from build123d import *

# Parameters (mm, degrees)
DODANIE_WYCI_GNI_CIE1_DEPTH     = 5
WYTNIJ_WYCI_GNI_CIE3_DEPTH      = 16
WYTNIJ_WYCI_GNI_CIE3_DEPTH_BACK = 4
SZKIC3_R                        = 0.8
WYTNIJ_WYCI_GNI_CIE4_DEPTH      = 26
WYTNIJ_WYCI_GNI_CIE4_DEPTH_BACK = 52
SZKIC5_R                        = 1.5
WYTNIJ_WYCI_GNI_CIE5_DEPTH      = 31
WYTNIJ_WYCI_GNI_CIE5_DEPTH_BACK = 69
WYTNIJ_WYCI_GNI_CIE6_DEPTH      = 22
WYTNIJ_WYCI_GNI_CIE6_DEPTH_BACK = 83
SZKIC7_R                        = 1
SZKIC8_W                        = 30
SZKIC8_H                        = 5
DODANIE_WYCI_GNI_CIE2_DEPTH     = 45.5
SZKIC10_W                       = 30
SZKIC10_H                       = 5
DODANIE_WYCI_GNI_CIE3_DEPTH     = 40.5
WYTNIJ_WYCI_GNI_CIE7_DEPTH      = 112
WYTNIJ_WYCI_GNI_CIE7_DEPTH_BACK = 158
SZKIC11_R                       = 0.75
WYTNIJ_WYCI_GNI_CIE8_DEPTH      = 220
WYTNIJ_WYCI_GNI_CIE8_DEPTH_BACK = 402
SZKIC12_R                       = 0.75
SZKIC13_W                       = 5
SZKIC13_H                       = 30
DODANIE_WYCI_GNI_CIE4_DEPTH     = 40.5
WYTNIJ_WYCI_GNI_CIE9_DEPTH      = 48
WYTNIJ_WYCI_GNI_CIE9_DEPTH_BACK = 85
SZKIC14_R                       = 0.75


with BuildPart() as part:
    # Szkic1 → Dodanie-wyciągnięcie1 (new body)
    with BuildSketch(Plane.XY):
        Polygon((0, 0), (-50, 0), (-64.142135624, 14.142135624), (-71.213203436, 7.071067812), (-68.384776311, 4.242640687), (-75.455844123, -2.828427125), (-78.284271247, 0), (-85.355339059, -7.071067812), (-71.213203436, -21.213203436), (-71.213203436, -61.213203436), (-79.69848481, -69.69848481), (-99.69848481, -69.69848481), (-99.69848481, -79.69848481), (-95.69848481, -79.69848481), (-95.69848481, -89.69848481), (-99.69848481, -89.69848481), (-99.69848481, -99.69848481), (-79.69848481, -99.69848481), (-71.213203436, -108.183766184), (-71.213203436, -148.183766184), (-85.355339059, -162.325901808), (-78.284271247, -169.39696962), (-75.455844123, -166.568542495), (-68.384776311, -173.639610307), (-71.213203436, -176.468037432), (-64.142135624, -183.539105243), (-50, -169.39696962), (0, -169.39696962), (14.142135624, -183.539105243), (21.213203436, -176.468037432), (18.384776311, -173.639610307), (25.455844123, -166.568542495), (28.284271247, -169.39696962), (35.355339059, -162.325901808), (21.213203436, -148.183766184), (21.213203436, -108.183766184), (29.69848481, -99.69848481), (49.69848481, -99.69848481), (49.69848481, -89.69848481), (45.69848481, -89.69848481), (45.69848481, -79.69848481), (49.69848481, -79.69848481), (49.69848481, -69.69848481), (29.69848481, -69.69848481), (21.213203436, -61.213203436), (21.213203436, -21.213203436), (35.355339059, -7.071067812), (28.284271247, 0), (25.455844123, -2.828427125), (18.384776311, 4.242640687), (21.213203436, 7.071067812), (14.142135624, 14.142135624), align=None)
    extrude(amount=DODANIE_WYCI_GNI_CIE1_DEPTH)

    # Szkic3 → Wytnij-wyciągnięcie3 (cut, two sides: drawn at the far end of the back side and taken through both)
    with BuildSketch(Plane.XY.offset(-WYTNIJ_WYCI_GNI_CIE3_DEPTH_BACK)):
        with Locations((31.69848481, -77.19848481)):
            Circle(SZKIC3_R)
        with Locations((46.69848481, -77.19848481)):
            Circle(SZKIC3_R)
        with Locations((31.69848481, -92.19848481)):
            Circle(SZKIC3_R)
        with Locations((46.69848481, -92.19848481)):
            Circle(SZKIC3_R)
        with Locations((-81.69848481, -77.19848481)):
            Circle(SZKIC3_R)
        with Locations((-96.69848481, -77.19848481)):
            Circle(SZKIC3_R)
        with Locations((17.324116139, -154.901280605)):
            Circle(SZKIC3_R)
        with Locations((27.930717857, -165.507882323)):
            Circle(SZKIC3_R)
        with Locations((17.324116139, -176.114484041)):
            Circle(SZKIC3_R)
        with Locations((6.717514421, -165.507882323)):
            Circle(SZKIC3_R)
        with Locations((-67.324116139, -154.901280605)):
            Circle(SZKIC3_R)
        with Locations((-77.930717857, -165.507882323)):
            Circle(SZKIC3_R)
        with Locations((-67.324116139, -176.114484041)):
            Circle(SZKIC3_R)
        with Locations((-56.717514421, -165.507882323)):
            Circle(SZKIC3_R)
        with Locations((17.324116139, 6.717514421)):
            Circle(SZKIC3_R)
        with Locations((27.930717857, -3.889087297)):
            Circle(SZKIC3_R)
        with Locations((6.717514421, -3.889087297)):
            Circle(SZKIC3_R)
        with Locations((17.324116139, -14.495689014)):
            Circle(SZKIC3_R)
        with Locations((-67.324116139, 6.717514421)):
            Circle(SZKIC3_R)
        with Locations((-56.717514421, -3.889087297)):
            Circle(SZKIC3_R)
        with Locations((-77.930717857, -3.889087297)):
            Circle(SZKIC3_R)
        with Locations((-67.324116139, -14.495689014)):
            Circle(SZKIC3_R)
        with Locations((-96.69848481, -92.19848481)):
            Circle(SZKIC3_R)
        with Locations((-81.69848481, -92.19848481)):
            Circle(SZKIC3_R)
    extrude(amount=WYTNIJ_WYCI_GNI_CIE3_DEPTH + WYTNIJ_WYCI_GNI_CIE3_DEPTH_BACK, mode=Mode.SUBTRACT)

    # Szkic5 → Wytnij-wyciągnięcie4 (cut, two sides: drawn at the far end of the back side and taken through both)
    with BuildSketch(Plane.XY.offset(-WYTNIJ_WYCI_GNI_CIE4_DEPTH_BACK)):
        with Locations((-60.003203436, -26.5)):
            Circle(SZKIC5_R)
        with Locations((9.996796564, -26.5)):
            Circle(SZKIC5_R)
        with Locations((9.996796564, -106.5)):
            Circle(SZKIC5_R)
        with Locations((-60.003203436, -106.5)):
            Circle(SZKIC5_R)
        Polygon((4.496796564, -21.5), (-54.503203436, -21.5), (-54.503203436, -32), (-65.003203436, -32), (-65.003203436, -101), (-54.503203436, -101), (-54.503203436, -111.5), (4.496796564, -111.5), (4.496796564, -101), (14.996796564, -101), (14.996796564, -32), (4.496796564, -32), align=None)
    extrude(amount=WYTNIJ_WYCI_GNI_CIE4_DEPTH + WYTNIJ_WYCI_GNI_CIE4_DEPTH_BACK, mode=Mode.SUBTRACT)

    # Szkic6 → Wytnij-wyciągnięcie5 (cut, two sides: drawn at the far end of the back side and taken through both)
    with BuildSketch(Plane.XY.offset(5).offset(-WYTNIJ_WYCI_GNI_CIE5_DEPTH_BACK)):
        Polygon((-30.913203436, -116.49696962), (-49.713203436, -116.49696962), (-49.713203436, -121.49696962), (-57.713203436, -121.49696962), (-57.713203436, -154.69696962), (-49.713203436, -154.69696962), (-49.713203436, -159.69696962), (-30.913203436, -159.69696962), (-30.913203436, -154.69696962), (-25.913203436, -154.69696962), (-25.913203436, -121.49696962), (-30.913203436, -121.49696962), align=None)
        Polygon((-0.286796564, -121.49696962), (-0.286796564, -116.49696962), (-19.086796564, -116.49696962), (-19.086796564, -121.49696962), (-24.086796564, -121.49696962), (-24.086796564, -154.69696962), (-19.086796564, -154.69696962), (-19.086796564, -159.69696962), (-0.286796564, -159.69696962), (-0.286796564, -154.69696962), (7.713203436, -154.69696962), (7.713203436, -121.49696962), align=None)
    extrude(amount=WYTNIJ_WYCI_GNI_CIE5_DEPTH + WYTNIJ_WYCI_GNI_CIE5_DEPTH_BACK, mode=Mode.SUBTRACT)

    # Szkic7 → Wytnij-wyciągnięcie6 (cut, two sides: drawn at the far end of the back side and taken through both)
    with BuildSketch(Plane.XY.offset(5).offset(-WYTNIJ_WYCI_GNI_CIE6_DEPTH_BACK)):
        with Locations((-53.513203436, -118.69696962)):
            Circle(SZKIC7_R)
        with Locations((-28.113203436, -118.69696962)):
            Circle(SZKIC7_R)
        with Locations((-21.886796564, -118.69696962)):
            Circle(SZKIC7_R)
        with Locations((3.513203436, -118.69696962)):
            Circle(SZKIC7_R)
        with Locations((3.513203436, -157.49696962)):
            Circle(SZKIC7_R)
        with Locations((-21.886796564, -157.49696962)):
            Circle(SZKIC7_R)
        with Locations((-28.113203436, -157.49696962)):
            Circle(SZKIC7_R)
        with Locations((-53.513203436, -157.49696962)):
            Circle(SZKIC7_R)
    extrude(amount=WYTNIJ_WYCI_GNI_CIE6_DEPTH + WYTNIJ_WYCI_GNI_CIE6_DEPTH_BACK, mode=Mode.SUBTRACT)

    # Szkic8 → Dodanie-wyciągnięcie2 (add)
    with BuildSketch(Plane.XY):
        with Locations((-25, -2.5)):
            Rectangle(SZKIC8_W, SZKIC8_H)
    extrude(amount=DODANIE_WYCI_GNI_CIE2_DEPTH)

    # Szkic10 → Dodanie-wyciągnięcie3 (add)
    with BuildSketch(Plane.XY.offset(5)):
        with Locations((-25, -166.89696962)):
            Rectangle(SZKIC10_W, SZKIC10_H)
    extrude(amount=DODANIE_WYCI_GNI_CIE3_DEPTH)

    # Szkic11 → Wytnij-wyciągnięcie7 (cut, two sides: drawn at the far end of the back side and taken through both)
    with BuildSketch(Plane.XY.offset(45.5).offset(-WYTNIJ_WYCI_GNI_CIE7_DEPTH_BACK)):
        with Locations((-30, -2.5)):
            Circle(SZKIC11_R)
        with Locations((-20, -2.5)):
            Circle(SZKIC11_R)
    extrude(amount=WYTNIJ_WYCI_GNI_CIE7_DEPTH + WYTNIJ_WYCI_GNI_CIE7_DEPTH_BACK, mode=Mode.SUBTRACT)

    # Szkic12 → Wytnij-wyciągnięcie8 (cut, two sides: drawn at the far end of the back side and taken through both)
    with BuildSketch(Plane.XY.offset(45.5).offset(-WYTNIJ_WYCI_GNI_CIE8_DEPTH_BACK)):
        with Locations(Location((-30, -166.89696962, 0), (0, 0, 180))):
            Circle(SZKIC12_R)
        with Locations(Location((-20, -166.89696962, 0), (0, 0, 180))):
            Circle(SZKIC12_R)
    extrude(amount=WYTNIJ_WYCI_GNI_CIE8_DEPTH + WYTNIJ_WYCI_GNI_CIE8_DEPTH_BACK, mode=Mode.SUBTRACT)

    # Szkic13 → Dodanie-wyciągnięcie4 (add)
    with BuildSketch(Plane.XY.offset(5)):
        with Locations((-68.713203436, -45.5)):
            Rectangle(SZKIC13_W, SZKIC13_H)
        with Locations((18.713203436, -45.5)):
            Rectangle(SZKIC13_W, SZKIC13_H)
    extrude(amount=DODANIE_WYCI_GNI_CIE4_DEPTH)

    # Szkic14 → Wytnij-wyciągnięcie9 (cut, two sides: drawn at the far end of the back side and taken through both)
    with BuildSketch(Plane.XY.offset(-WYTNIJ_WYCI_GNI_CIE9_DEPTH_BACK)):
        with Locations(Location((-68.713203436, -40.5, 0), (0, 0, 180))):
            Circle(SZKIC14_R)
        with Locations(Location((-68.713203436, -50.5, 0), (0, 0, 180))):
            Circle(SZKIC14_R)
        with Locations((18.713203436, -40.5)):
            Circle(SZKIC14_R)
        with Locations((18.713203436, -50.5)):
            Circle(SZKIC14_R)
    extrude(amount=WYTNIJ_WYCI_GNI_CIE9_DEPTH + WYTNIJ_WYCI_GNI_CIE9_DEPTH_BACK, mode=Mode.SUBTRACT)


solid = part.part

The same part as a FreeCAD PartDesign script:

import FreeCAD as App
import Part
import Sketcher

V = App.Vector

doc = App.newDocument("Part")
body = doc.addObject("PartDesign::Body", "Body")

sketch1 = body.newObject("Sketcher::SketchObject", "Sketch")
sketch1.AttachmentSupport = (doc.getObject("XY_Plane"), [""])
sketch1.MapMode = "FlatFace"
sketch1.addGeometry([
    Part.LineSegment(V(0, 0, 0), V(-50, 0, 0)),
    Part.LineSegment(V(-50, 0, 0), V(-64.1, 14.1, 0)),
    Part.LineSegment(V(-64.1, 14.1, 0), V(-71.2, 7.1, 0)),
    Part.LineSegment(V(-71.2, 7.1, 0), V(-68.4, 4.2, 0)),
    Part.LineSegment(V(-68.4, 4.2, 0), V(-75.5, -2.8, 0)),
    Part.LineSegment(V(-75.5, -2.8, 0), V(-78.3, 0, 0)),
    Part.LineSegment(V(-78.3, 0, 0), V(-85.4, -7.1, 0)),
    Part.LineSegment(V(-85.4, -7.1, 0), V(-71.2, -21.2, 0)),
    Part.LineSegment(V(-71.2, -21.2, 0), V(-71.2, -61.2, 0)),
    Part.LineSegment(V(-71.2, -61.2, 0), V(-79.7, -69.7, 0)),
    Part.LineSegment(V(-79.7, -69.7, 0), V(-99.7, -69.7, 0)),
    Part.LineSegment(V(-99.7, -69.7, 0), V(-99.7, -79.7, 0)),
    Part.LineSegment(V(-99.7, -79.7, 0), V(-95.7, -79.7, 0)),
    Part.LineSegment(V(-95.7, -79.7, 0), V(-95.7, -89.7, 0)),
    Part.LineSegment(V(-95.7, -89.7, 0), V(-99.7, -89.7, 0)),
    Part.LineSegment(V(-99.7, -89.7, 0), V(-99.7, -99.7, 0)),
    Part.LineSegment(V(-99.7, -99.7, 0), V(-79.7, -99.7, 0)),
    Part.LineSegment(V(-79.7, -99.7, 0), V(-71.2, -108.2, 0)),
    Part.LineSegment(V(-71.2, -108.2, 0), V(-71.2, -148.2, 0)),
    Part.LineSegment(V(-71.2, -148.2, 0), V(-85.4, -162.3, 0)),
    Part.LineSegment(V(-85.4, -162.3, 0), V(-78.3, -169.4, 0)),
    Part.LineSegment(V(-78.3, -169.4, 0), V(-75.5, -166.6, 0)),
    Part.LineSegment(V(-75.5, -166.6, 0), V(-68.4, -173.6, 0)),
    Part.LineSegment(V(-68.4, -173.6, 0), V(-71.2, -176.5, 0)),
    Part.LineSegment(V(-71.2, -176.5, 0), V(-64.1, -183.5, 0)),
    Part.LineSegment(V(-64.1, -183.5, 0), V(-50, -169.4, 0)),
    Part.LineSegment(V(-50, -169.4, 0), V(0, -169.4, 0)),
    Part.LineSegment(V(0, -169.4, 0), V(14.1, -183.5, 0)),
    Part.LineSegment(V(14.1, -183.5, 0), V(21.2, -176.5, 0)),
    Part.LineSegment(V(21.2, -176.5, 0), V(18.4, -173.6, 0)),
    Part.LineSegment(V(18.4, -173.6, 0), V(25.5, -166.6, 0)),
    Part.LineSegment(V(25.5, -166.6, 0), V(28.3, -169.4, 0)),
    Part.LineSegment(V(28.3, -169.4, 0), V(35.4, -162.3, 0)),
    Part.LineSegment(V(35.4, -162.3, 0), V(21.2, -148.2, 0)),
    Part.LineSegment(V(21.2, -148.2, 0), V(21.2, -108.2, 0)),
    Part.LineSegment(V(21.2, -108.2, 0), V(29.7, -99.7, 0)),
    Part.LineSegment(V(29.7, -99.7, 0), V(49.7, -99.7, 0)),
    Part.LineSegment(V(49.7, -99.7, 0), V(49.7, -89.7, 0)),
    Part.LineSegment(V(49.7, -89.7, 0), V(45.7, -89.7, 0)),
    Part.LineSegment(V(45.7, -89.7, 0), V(45.7, -79.7, 0)),
    Part.LineSegment(V(45.7, -79.7, 0), V(49.7, -79.7, 0)),
    Part.LineSegment(V(49.7, -79.7, 0), V(49.7, -69.7, 0)),
    Part.LineSegment(V(49.7, -69.7, 0), V(29.7, -69.7, 0)),
    Part.LineSegment(V(29.7, -69.7, 0), V(21.2, -61.2, 0)),
    Part.LineSegment(V(21.2, -61.2, 0), V(21.2, -21.2, 0)),
    Part.LineSegment(V(21.2, -21.2, 0), V(35.4, -7.1, 0)),
    Part.LineSegment(V(35.4, -7.1, 0), V(28.3, 0, 0)),
    Part.LineSegment(V(28.3, 0, 0), V(25.5, -2.8, 0)),
    Part.LineSegment(V(25.5, -2.8, 0), V(18.4, 4.2, 0)),
    Part.LineSegment(V(18.4, 4.2, 0), V(21.2, 7.1, 0)),
    Part.LineSegment(V(21.2, 7.1, 0), V(14.1, 14.1, 0)),
    Part.LineSegment(V(14.1, 14.1, 0), V(0, 0, 0)),
], False)
sketch1.addConstraint([
    Sketcher.Constraint("Coincident", 0, 2, 1, 1),
    Sketcher.Constraint("Coincident", 1, 2, 2, 1),
    Sketcher.Constraint("Coincident", 2, 2, 3, 1),
    Sketcher.Constraint("Coincident", 3, 2, 4, 1),
    Sketcher.Constraint("Coincident", 4, 2, 5, 1),
    Sketcher.Constraint("Coincident", 5, 2, 6, 1),
    Sketcher.Constraint("Coincident", 6, 2, 7, 1),
    Sketcher.Constraint("Coincident", 7, 2, 8, 1),
    Sketcher.Constraint("Coincident", 8, 2, 9, 1),
    Sketcher.Constraint("Coincident", 9, 2, 10, 1),
    Sketcher.Constraint("Coincident", 10, 2, 11, 1),
    Sketcher.Constraint("Coincident", 11, 2, 12, 1),
    Sketcher.Constraint("Coincident", 12, 2, 13, 1),
    Sketcher.Constraint("Coincident", 13, 2, 14, 1),
    Sketcher.Constraint("Coincident", 14, 2, 15, 1),
    Sketcher.Constraint("Coincident", 15, 2, 16, 1),
    Sketcher.Constraint("Coincident", 16, 2, 17, 1),
    Sketcher.Constraint("Coincident", 17, 2, 18, 1),
    Sketcher.Constraint("Coincident", 18, 2, 19, 1),
    Sketcher.Constraint("Coincident", 19, 2, 20, 1),
    Sketcher.Constraint("Coincident", 20, 2, 21, 1),
    Sketcher.Constraint("Coincident", 21, 2, 22, 1),
    Sketcher.Constraint("Coincident", 22, 2, 23, 1),
    Sketcher.Constraint("Coincident", 23, 2, 24, 1),
    Sketcher.Constraint("Coincident", 24, 2, 25, 1),
    Sketcher.Constraint("Coincident", 25, 2, 26, 1),
    Sketcher.Constraint("Coincident", 26, 2, 27, 1),
    Sketcher.Constraint("Coincident", 27, 2, 28, 1),
    Sketcher.Constraint("Coincident", 28, 2, 29, 1),
    Sketcher.Constraint("Coincident", 29, 2, 30, 1),
    Sketcher.Constraint("Coincident", 30, 2, 31, 1),
    Sketcher.Constraint("Coincident", 31, 2, 32, 1),
    Sketcher.Constraint("Coincident", 32, 2, 33, 1),
    Sketcher.Constraint("Coincident", 33, 2, 34, 1),
    Sketcher.Constraint("Coincident", 34, 2, 35, 1),
    Sketcher.Constraint("Coincident", 35, 2, 36, 1),
    Sketcher.Constraint("Coincident", 36, 2, 37, 1),
    Sketcher.Constraint("Coincident", 37, 2, 38, 1),
    Sketcher.Constraint("Coincident", 38, 2, 39, 1),
    Sketcher.Constraint("Coincident", 39, 2, 40, 1),
    Sketcher.Constraint("Coincident", 40, 2, 41, 1),
    Sketcher.Constraint("Coincident", 41, 2, 42, 1),
    Sketcher.Constraint("Coincident", 42, 2, 43, 1),
    Sketcher.Constraint("Coincident", 43, 2, 44, 1),
    Sketcher.Constraint("Coincident", 44, 2, 45, 1),
    Sketcher.Constraint("Coincident", 45, 2, 46, 1),
    Sketcher.Constraint("Coincident", 46, 2, 47, 1),
    Sketcher.Constraint("Coincident", 47, 2, 48, 1),
    Sketcher.Constraint("Coincident", 48, 2, 49, 1),
    Sketcher.Constraint("Coincident", 49, 2, 50, 1),
    Sketcher.Constraint("Coincident", 50, 2, 51, 1),
    Sketcher.Constraint("Coincident", 51, 2, 0, 1),
    Sketcher.Constraint("Horizontal", 0),
    Sketcher.Constraint("Vertical", 8),
    Sketcher.Constraint("Horizontal", 10),
    Sketcher.Constraint("Vertical", 11),
    Sketcher.Constraint("Horizontal", 12),
    Sketcher.Constraint("Vertical", 13),
    Sketcher.Constraint("Horizontal", 14),
    Sketcher.Constraint("Vertical", 15),
    Sketcher.Constraint("Horizontal", 16),
    Sketcher.Constraint("Vertical", 18),
    Sketcher.Constraint("Horizontal", 26),
    Sketcher.Constraint("Vertical", 34),
    Sketcher.Constraint("Horizontal", 36),
    Sketcher.Constraint("Vertical", 37),
    Sketcher.Constraint("Horizontal", 38),
    Sketcher.Constraint("Vertical", 39),
    Sketcher.Constraint("Horizontal", 40),
    Sketcher.Constraint("Vertical", 41),
    Sketcher.Constraint("Horizontal", 42),
    Sketcher.Constraint("Vertical", 44),
    Sketcher.Constraint("Coincident", 51, 2, -1, 1),
    Sketcher.Constraint("PointOnObject", 5, 2, -1),
    Sketcher.Constraint("PointOnObject", 26, 2, -2),
    Sketcher.Constraint("PointOnObject", 46, 2, -1),
    Sketcher.Constraint("Perpendicular", 1, 2),
    Sketcher.Constraint("Perpendicular", 2, 3),
    Sketcher.Constraint("Perpendicular", 3, 4),
    Sketcher.Constraint("Perpendicular", 4, 5),
    Sketcher.Constraint("Perpendicular", 5, 6),
    Sketcher.Constraint("Perpendicular", 6, 7),
    Sketcher.Constraint("Perpendicular", 7, 9),
    Sketcher.Constraint("Perpendicular", 9, 17),
    Sketcher.Constraint("Perpendicular", 17, 19),
    Sketcher.Constraint("Perpendicular", 19, 20),
    Sketcher.Constraint("Perpendicular", 20, 21),
    Sketcher.Constraint("Perpendicular", 21, 22),
    Sketcher.Constraint("Perpendicular", 22, 23),
    Sketcher.Constraint("Perpendicular", 23, 24),
    Sketcher.Constraint("Perpendicular", 24, 25),
    Sketcher.Constraint("Perpendicular", 25, 27),
    Sketcher.Constraint("Perpendicular", 27, 28),
    Sketcher.Constraint("Perpendicular", 28, 29),
    Sketcher.Constraint("Perpendicular", 29, 30),
    Sketcher.Constraint("Perpendicular", 30, 31),
    Sketcher.Constraint("Perpendicular", 31, 32),
    Sketcher.Constraint("Perpendicular", 32, 33),
    Sketcher.Constraint("Perpendicular", 33, 35),
    Sketcher.Constraint("Perpendicular", 35, 43),
    Sketcher.Constraint("Perpendicular", 43, 45),
    Sketcher.Constraint("Perpendicular", 45, 46),
    Sketcher.Constraint("Perpendicular", 46, 47),
    Sketcher.Constraint("Perpendicular", 47, 48),
    Sketcher.Constraint("Perpendicular", 48, 49),
    Sketcher.Constraint("Perpendicular", 49, 50),
    Sketcher.Constraint("Perpendicular", 50, 51),
    Sketcher.Constraint("Horizontal", 20, 2, 25, 2),
    Sketcher.Constraint("Horizontal", 24, 2, 27, 2),
    Sketcher.Constraint("Horizontal", 23, 2, 28, 2),
    Sketcher.Constraint("Horizontal", 22, 2, 29, 2),
    Sketcher.Constraint("Horizontal", 21, 2, 30, 2),
    Sketcher.Constraint("Horizontal", 26, 2, 31, 2),
    Sketcher.Constraint("Horizontal", 19, 2, 32, 2),
    Sketcher.Constraint("Horizontal", 18, 2, 33, 2),
    Sketcher.Constraint("Horizontal", 17, 2, 34, 2),
    Sketcher.Constraint("Horizontal", 16, 2, 35, 2),
    Sketcher.Constraint("Horizontal", 14, 2, 37, 2),
    Sketcher.Constraint("Horizontal", 12, 2, 39, 2),
    Sketcher.Constraint("Horizontal", 10, 2, 41, 2),
    Sketcher.Constraint("Horizontal", 8, 2, 43, 2),
    Sketcher.Constraint("Horizontal", 7, 2, 44, 2),
    Sketcher.Constraint("Horizontal", 6, 2, 45, 2),
    Sketcher.Constraint("Horizontal", 4, 2, 47, 2),
    Sketcher.Constraint("Horizontal", 3, 2, 48, 2),
    Sketcher.Constraint("Horizontal", 2, 2, 49, 2),
    Sketcher.Constraint("Horizontal", 1, 2, 50, 2),
    Sketcher.Constraint("Vertical", 2, 2, 7, 2),
    Sketcher.Constraint("Vertical", 11, 2, 14, 2),
    Sketcher.Constraint("Vertical", 9, 2, 16, 2),
    Sketcher.Constraint("Vertical", 8, 2, 17, 2),
    Sketcher.Constraint("Vertical", 6, 2, 19, 2),
    Sketcher.Constraint("Vertical", 5, 2, 20, 2),
    Sketcher.Constraint("Vertical", 4, 2, 21, 2),
    Sketcher.Constraint("Vertical", 3, 2, 22, 2),
    Sketcher.Constraint("Vertical", 18, 2, 23, 2),
    Sketcher.Constraint("Vertical", 1, 2, 24, 2),
    Sketcher.Constraint("Vertical", 0, 2, 25, 2),
    Sketcher.Constraint("Vertical", 37, 2, 40, 2),
    Sketcher.Constraint("Equal", 16, 36),
    Sketcher.Constraint("Equal", 14, 38),
    Sketcher.Constraint("Equal", 11, 13),
    Sketcher.Constraint("Equal", 13, 15),
    Sketcher.Constraint("Equal", 8, 18),
    Sketcher.Constraint("Equal", 2, 4),
    Sketcher.Constraint("Equal", 3, 5),
    Sketcher.Constraint("Equal", 4, 6),
    Sketcher.Constraint("DistanceX", 0, 2, 0, 1, 50.0),
    Sketcher.Constraint("DistanceX", 10, 2, 10, 1, 20.0),
    Sketcher.Constraint("DistanceX", 12, 1, 12, 2, 4.0),
    Sketcher.Constraint("DistanceY", 8, 2, 8, 1, 40.0),
    Sketcher.Constraint("DistanceY", 11, 2, 11, 1, 10.0),
    Sketcher.Constraint("Distance", 1, 20.0),
    Sketcher.Constraint("Distance", 3, 4.0),
    Sketcher.Constraint("Distance", 9, 12.0),
])
pad1 = body.newObject("PartDesign::Pad", "Pad")
pad1.Profile = sketch1
pad1.Length = 5

sketch2 = body.newObject("Sketcher::SketchObject", "Sketch001")
sketch2.AttachmentSupport = (doc.getObject("XY_Plane"), [""])
sketch2.MapMode = "FlatFace"
sketch2.addGeometry([
    Part.Circle(V(31.7, -77.2, 0), V(0, 0, 1), 0.8),
    Part.Circle(V(46.7, -77.2, 0), V(0, 0, 1), 0.8),
    Part.Circle(V(31.7, -92.2, 0), V(0, 0, 1), 0.8),
    Part.Circle(V(46.7, -92.2, 0), V(0, 0, 1), 0.8),
    Part.Circle(V(-81.7, -77.2, 0), V(0, 0, 1), 0.8),
    Part.Circle(V(-96.7, -77.2, 0), V(0, 0, 1), 0.8),
    Part.Circle(V(17.3, -154.9, 0), V(0, 0, 1), 0.8),
    Part.Circle(V(27.9, -165.5, 0), V(0, 0, 1), 0.8),
    Part.Circle(V(17.3, -176.1, 0), V(0, 0, 1), 0.8),
    Part.Circle(V(6.7, -165.5, 0), V(0, 0, 1), 0.8),
    Part.Circle(V(-67.3, -154.9, 0), V(0, 0, 1), 0.8),
    Part.Circle(V(-77.9, -165.5, 0), V(0, 0, 1), 0.8),
    Part.Circle(V(-67.3, -176.1, 0), V(0, 0, 1), 0.8),
    Part.Circle(V(-56.7, -165.5, 0), V(0, 0, 1), 0.8),
    Part.Circle(V(17.3, 6.7, 0), V(0, 0, 1), 0.8),
    Part.Circle(V(27.9, -3.9, 0), V(0, 0, 1), 0.8),
    Part.Circle(V(6.7, -3.9, 0), V(0, 0, 1), 0.8),
    Part.Circle(V(17.3, -14.5, 0), V(0, 0, 1), 0.8),
    Part.Circle(V(-67.3, 6.7, 0), V(0, 0, 1), 0.8),
    Part.Circle(V(-56.7, -3.9, 0), V(0, 0, 1), 0.8),
    Part.Circle(V(-77.9, -3.9, 0), V(0, 0, 1), 0.8),
    Part.Circle(V(-67.3, -14.5, 0), V(0, 0, 1), 0.8),
    Part.Circle(V(-96.7, -92.2, 0), V(0, 0, 1), 0.8),
    Part.Circle(V(-81.7, -92.2, 0), V(0, 0, 1), 0.8),
], False)
sketch2.addConstraint([
    Sketcher.Constraint("Equal", 0, 1),
    Sketcher.Constraint("Equal", 1, 2),
    Sketcher.Constraint("Equal", 2, 3),
    Sketcher.Constraint("Equal", 3, 4),
    Sketcher.Constraint("Equal", 4, 5),
    Sketcher.Constraint("Equal", 5, 6),
    Sketcher.Constraint("Equal", 6, 7),
    Sketcher.Constraint("Equal", 7, 8),
    Sketcher.Constraint("Equal", 8, 9),
    Sketcher.Constraint("Equal", 9, 10),
    Sketcher.Constraint("Equal", 10, 11),
    Sketcher.Constraint("Equal", 11, 12),
    Sketcher.Constraint("Equal", 12, 13),
    Sketcher.Constraint("Equal", 13, 14),
    Sketcher.Constraint("Equal", 14, 15),
    Sketcher.Constraint("Equal", 15, 16),
    Sketcher.Constraint("Equal", 16, 17),
    Sketcher.Constraint("Equal", 17, 18),
    Sketcher.Constraint("Equal", 18, 19),
    Sketcher.Constraint("Equal", 19, 20),
    Sketcher.Constraint("Equal", 20, 21),
    Sketcher.Constraint("Equal", 21, 22),
    Sketcher.Constraint("Equal", 22, 23),
    Sketcher.Constraint("Horizontal", 0, 3, 1, 3),
    Sketcher.Constraint("Horizontal", 2, 3, 3, 3),
    Sketcher.Constraint("Horizontal", 1, 3, 4, 3),
    Sketcher.Constraint("Horizontal", 4, 3, 5, 3),
    Sketcher.Constraint("Horizontal", 7, 3, 9, 3),
    Sketcher.Constraint("Horizontal", 6, 3, 10, 3),
    Sketcher.Constraint("Horizontal", 9, 3, 11, 3),
    Sketcher.Constraint("Horizontal", 8, 3, 12, 3),
    Sketcher.Constraint("Horizontal", 11, 3, 13, 3),
    Sketcher.Constraint("Horizontal", 15, 3, 16, 3),
    Sketcher.Constraint("Horizontal", 14, 3, 18, 3),
    Sketcher.Constraint("Horizontal", 16, 3, 19, 3),
    Sketcher.Constraint("Horizontal", 19, 3, 20, 3),
    Sketcher.Constraint("Horizontal", 17, 3, 21, 3),
    Sketcher.Constraint("Horizontal", 3, 3, 22, 3),
    Sketcher.Constraint("Horizontal", 22, 3, 23, 3),
    Sketcher.Constraint("Vertical", 0, 3, 2, 3),
    Sketcher.Constraint("Vertical", 1, 3, 3, 3),
    Sketcher.Constraint("Vertical", 6, 3, 8, 3),
    Sketcher.Constraint("Vertical", 10, 3, 12, 3),
    Sketcher.Constraint("Vertical", 8, 3, 14, 3),
    Sketcher.Constraint("Vertical", 7, 3, 15, 3),
    Sketcher.Constraint("Vertical", 9, 3, 16, 3),
    Sketcher.Constraint("Vertical", 14, 3, 17, 3),
    Sketcher.Constraint("Vertical", 12, 3, 18, 3),
    Sketcher.Constraint("Vertical", 13, 3, 19, 3),
    Sketcher.Constraint("Vertical", 11, 3, 20, 3),
    Sketcher.Constraint("Vertical", 18, 3, 21, 3),
    Sketcher.Constraint("Vertical", 5, 3, 22, 3),
    Sketcher.Constraint("Vertical", 4, 3, 23, 3),
    Sketcher.Constraint("Diameter", 0, 1.6),
    Sketcher.Constraint("DistanceX", 0, 3, 1, 3, 15.0),
    Sketcher.Constraint("DistanceY", 2, 3, 0, 3, 15.0),
    Sketcher.Constraint("DistanceX", 5, 3, 4, 3, 15.0),
    Sketcher.Constraint("DistanceY", 8, 3, 2, 3, 83.915999),
    Sketcher.Constraint("DistanceY", 0, 3, 14, 3, 83.915999),
    Sketcher.Constraint("DistanceX", 4, 3, 6, 3, 99.022601),
    Sketcher.Constraint("DistanceX", 6, 3, 7, 3, 10.606602),
    Sketcher.Constraint("DistanceY", 7, 3, 6, 3, 10.606602),
    Sketcher.Constraint("DistanceY", 8, 3, 7, 3, 10.606602),
    Sketcher.Constraint("DistanceX", 9, 3, 6, 3, 10.606602),
    Sketcher.Constraint("DistanceX", 11, 3, 10, 3, 10.606602),
    Sketcher.Constraint("DistanceX", 10, 3, 13, 3, 10.606602),
    Sketcher.Constraint("DistanceY", 15, 3, 14, 3, 10.606602),
    Sketcher.Constraint("DistanceY", 17, 3, 15, 3, 10.606602),
    Sketcher.Constraint("DistanceY", 6, 3, -1, 1, 154.901281),
    Sketcher.Constraint("DistanceX", 4, 3, 0, 3, 113.39697),
    Sketcher.Constraint("DistanceX", 10, 3, 9, 3, 74.041631),
    Sketcher.Constraint("DistanceX", -1, 1, 0, 3, 31.698485),
])
pocket1 = body.newObject("PartDesign::Pocket", "Pocket")
pocket1.Profile = sketch2
pocket1.Type = "ThroughAll"
pocket1.Midplane = True

sketch3 = body.newObject("Sketcher::SketchObject", "Sketch002")
sketch3.AttachmentSupport = (doc.getObject("XY_Plane"), [""])
sketch3.MapMode = "FlatFace"
sketch3.addGeometry([
    Part.Circle(V(-60, -26.5, 0), V(0, 0, 1), 1.5),
    Part.Circle(V(10, -26.5, 0), V(0, 0, 1), 1.5),
    Part.Circle(V(10, -106.5, 0), V(0, 0, 1), 1.5),
    Part.Circle(V(-60, -106.5, 0), V(0, 0, 1), 1.5),
    Part.LineSegment(V(4.5, -21.5, 0), V(-54.5, -21.5, 0)),
    Part.LineSegment(V(-54.5, -21.5, 0), V(-54.5, -32, 0)),
    Part.LineSegment(V(-54.5, -32, 0), V(-65, -32, 0)),
    Part.LineSegment(V(-65, -32, 0), V(-65, -101, 0)),
    Part.LineSegment(V(-65, -101, 0), V(-54.5, -101, 0)),
    Part.LineSegment(V(-54.5, -101, 0), V(-54.5, -111.5, 0)),
    Part.LineSegment(V(-54.5, -111.5, 0), V(4.5, -111.5, 0)),
    Part.LineSegment(V(4.5, -111.5, 0), V(4.5, -101, 0)),
    Part.LineSegment(V(4.5, -101, 0), V(15, -101, 0)),
    Part.LineSegment(V(15, -101, 0), V(15, -32, 0)),
    Part.LineSegment(V(15, -32, 0), V(4.5, -32, 0)),
    Part.LineSegment(V(4.5, -32, 0), V(4.5, -21.5, 0)),
], False)
sketch3.addConstraint([
    Sketcher.Constraint("Coincident", 4, 2, 5, 1),
    Sketcher.Constraint("Coincident", 5, 2, 6, 1),
    Sketcher.Constraint("Coincident", 6, 2, 7, 1),
    Sketcher.Constraint("Coincident", 7, 2, 8, 1),
    Sketcher.Constraint("Coincident", 8, 2, 9, 1),
    Sketcher.Constraint("Coincident", 9, 2, 10, 1),
    Sketcher.Constraint("Coincident", 10, 2, 11, 1),
    Sketcher.Constraint("Coincident", 11, 2, 12, 1),
    Sketcher.Constraint("Coincident", 12, 2, 13, 1),
    Sketcher.Constraint("Coincident", 13, 2, 14, 1),
    Sketcher.Constraint("Coincident", 14, 2, 15, 1),
    Sketcher.Constraint("Coincident", 15, 2, 4, 1),
    Sketcher.Constraint("Horizontal", 4),
    Sketcher.Constraint("Vertical", 5),
    Sketcher.Constraint("Horizontal", 6),
    Sketcher.Constraint("Vertical", 7),
    Sketcher.Constraint("Horizontal", 8),
    Sketcher.Constraint("Vertical", 9),
    Sketcher.Constraint("Horizontal", 10),
    Sketcher.Constraint("Vertical", 11),
    Sketcher.Constraint("Horizontal", 12),
    Sketcher.Constraint("Vertical", 13),
    Sketcher.Constraint("Horizontal", 14),
    Sketcher.Constraint("Vertical", 15),
    Sketcher.Constraint("Equal", 0, 1),
    Sketcher.Constraint("Equal", 1, 2),
    Sketcher.Constraint("Equal", 2, 3),
    Sketcher.Constraint("Horizontal", 0, 3, 1, 3),
    Sketcher.Constraint("Horizontal", 2, 3, 3, 3),
    Sketcher.Constraint("Horizontal", 8, 2, 11, 2),
    Sketcher.Constraint("Horizontal", 6, 2, 13, 2),
    Sketcher.Constraint("Vertical", 1, 3, 2, 3),
    Sketcher.Constraint("Vertical", 0, 3, 3, 3),
    Sketcher.Constraint("Vertical", 5, 2, 8, 2),
    Sketcher.Constraint("Vertical", 11, 2, 14, 2),
    Sketcher.Constraint("Equal", 8, 12),
    Sketcher.Constraint("Equal", 14, 5),
    Sketcher.Constraint("Equal", 5, 9),
    Sketcher.Constraint("Diameter", 0, 3.0),
    Sketcher.Constraint("DistanceX", 4, 2, 4, 1, 59.0),
    Sketcher.Constraint("DistanceY", 7, 2, 7, 1, 69.0),
    Sketcher.Constraint("DistanceX", 6, 2, 6, 1, 10.5),
    Sketcher.Constraint("DistanceY", 5, 2, -1, 1, 32.0),
    Sketcher.Constraint("DistanceX", 0, 3, 1, 3, 70.0),
    Sketcher.Constraint("DistanceY", 2, 3, 1, 3, 80.0),
    Sketcher.Constraint("DistanceY", 0, 3, 4, 2, 5.0),
    Sketcher.Constraint("DistanceX", 6, 2, 0, 3, 5.0),
    Sketcher.Constraint("DistanceX", 0, 3, -1, 1, 60.003203),
])
pocket2 = body.newObject("PartDesign::Pocket", "Pocket001")
pocket2.Profile = sketch3
pocket2.Type = "ThroughAll"
pocket2.Midplane = True

sketch4 = body.newObject("Sketcher::SketchObject", "Sketch003")
sketch4.AttachmentSupport = (doc.getObject("XY_Plane"), [""])
sketch4.MapMode = "FlatFace"
sketch4.AttachmentOffset = App.Placement(V(0, 0, 5), App.Rotation())
sketch4.addGeometry([
    Part.LineSegment(V(-31, -116, 0), V(-50, -116, 0)),
    Part.LineSegment(V(-50, -116, 0), V(-50, -121, 0)),
    Part.LineSegment(V(-50, -121, 0), V(-58, -121, 0)),
    Part.LineSegment(V(-58, -121, 0), V(-58, -155, 0)),
    Part.LineSegment(V(-58, -155, 0), V(-50, -155, 0)),
    Part.LineSegment(V(-50, -155, 0), V(-50, -160, 0)),
    Part.LineSegment(V(-50, -160, 0), V(-31, -160, 0)),
    Part.LineSegment(V(-31, -160, 0), V(-31, -155, 0)),
    Part.LineSegment(V(-31, -155, 0), V(-26, -155, 0)),
    Part.LineSegment(V(-26, -155, 0), V(-26, -121, 0)),
    Part.LineSegment(V(-26, -121, 0), V(-31, -121, 0)),
    Part.LineSegment(V(-31, -121, 0), V(-31, -116, 0)),
    Part.LineSegment(V(0, -121, 0), V(0, -116, 0)),
    Part.LineSegment(V(0, -116, 0), V(-19, -116, 0)),
    Part.LineSegment(V(-19, -116, 0), V(-19, -121, 0)),
    Part.LineSegment(V(-19, -121, 0), V(-24, -121, 0)),
    Part.LineSegment(V(-24, -121, 0), V(-24, -155, 0)),
    Part.LineSegment(V(-24, -155, 0), V(-19, -155, 0)),
    Part.LineSegment(V(-19, -155, 0), V(-19, -160, 0)),
    Part.LineSegment(V(-19, -160, 0), V(0, -160, 0)),
    Part.LineSegment(V(0, -160, 0), V(0, -155, 0)),
    Part.LineSegment(V(0, -155, 0), V(8, -155, 0)),
    Part.LineSegment(V(8, -155, 0), V(8, -121, 0)),
    Part.LineSegment(V(8, -121, 0), V(0, -121, 0)),
], False)
sketch4.addConstraint([
    Sketcher.Constraint("Coincident", 0, 2, 1, 1),
    Sketcher.Constraint("Coincident", 1, 2, 2, 1),
    Sketcher.Constraint("Coincident", 2, 2, 3, 1),
    Sketcher.Constraint("Coincident", 3, 2, 4, 1),
    Sketcher.Constraint("Coincident", 4, 2, 5, 1),
    Sketcher.Constraint("Coincident", 5, 2, 6, 1),
    Sketcher.Constraint("Coincident", 6, 2, 7, 1),
    Sketcher.Constraint("Coincident", 7, 2, 8, 1),
    Sketcher.Constraint("Coincident", 8, 2, 9, 1),
    Sketcher.Constraint("Coincident", 9, 2, 10, 1),
    Sketcher.Constraint("Coincident", 10, 2, 11, 1),
    Sketcher.Constraint("Coincident", 11, 2, 0, 1),
    Sketcher.Constraint("Coincident", 12, 2, 13, 1),
    Sketcher.Constraint("Coincident", 13, 2, 14, 1),
    Sketcher.Constraint("Coincident", 14, 2, 15, 1),
    Sketcher.Constraint("Coincident", 15, 2, 16, 1),
    Sketcher.Constraint("Coincident", 16, 2, 17, 1),
    Sketcher.Constraint("Coincident", 17, 2, 18, 1),
    Sketcher.Constraint("Coincident", 18, 2, 19, 1),
    Sketcher.Constraint("Coincident", 19, 2, 20, 1),
    Sketcher.Constraint("Coincident", 20, 2, 21, 1),
    Sketcher.Constraint("Coincident", 21, 2, 22, 1),
    Sketcher.Constraint("Coincident", 22, 2, 23, 1),
    Sketcher.Constraint("Coincident", 23, 2, 12, 1),
    Sketcher.Constraint("Horizontal", 0),
    Sketcher.Constraint("Vertical", 1),
    Sketcher.Constraint("Horizontal", 2),
    Sketcher.Constraint("Vertical", 3),
    Sketcher.Constraint("Horizontal", 4),
    Sketcher.Constraint("Vertical", 5),
    Sketcher.Constraint("Horizontal", 6),
    Sketcher.Constraint("Vertical", 7),
    Sketcher.Constraint("Horizontal", 8),
    Sketcher.Constraint("Vertical", 9),
    Sketcher.Constraint("Horizontal", 10),
    Sketcher.Constraint("Vertical", 11),
    Sketcher.Constraint("Vertical", 12),
    Sketcher.Constraint("Horizontal", 13),
    Sketcher.Constraint("Vertical", 14),
    Sketcher.Constraint("Horizontal", 15),
    Sketcher.Constraint("Vertical", 16),
    Sketcher.Constraint("Horizontal", 17),
    Sketcher.Constraint("Vertical", 18),
    Sketcher.Constraint("Horizontal", 19),
    Sketcher.Constraint("Vertical", 20),
    Sketcher.Constraint("Horizontal", 21),
    Sketcher.Constraint("Vertical", 22),
    Sketcher.Constraint("Horizontal", 23),
    Sketcher.Constraint("Horizontal", 4, 2, 7, 2),
    Sketcher.Constraint("Horizontal", 2, 2, 9, 2),
    Sketcher.Constraint("Horizontal", 11, 2, 12, 2),
    Sketcher.Constraint("Horizontal", 10, 2, 14, 2),
    Sketcher.Constraint("Horizontal", 8, 2, 16, 2),
    Sketcher.Constraint("Horizontal", 6, 2, 18, 2),
    Sketcher.Constraint("Horizontal", 17, 2, 20, 2),
    Sketcher.Constraint("Horizontal", 15, 2, 22, 2),
    Sketcher.Constraint("Vertical", 1, 2, 4, 2),
    Sketcher.Constraint("Vertical", 7, 2, 10, 2),
    Sketcher.Constraint("Vertical", 14, 2, 17, 2),
    Sketcher.Constraint("Vertical", 12, 2, 19, 2),
    Sketcher.Constraint("Equal", 6, 13),
    Sketcher.Constraint("Equal", 10, 15),
    Sketcher.Constraint("Equal", 4, 21),
    Sketcher.Constraint("Equal", 17, 1),
    Sketcher.Constraint("Equal", 1, 5),
    Sketcher.Constraint("DistanceX", 2, 2, 2, 1, 8.0),
    Sketcher.Constraint("DistanceX", 8, 1, 8, 2, 5.0),
    Sketcher.Constraint("DistanceX", 0, 2, 0, 1, 18.8),
    Sketcher.Constraint("DistanceY", 3, 2, 3, 1, 33.2),
    Sketcher.Constraint("DistanceY", 0, 2, -1, 1, 116.49697),
    Sketcher.Constraint("DistanceX", 0, 2, -1, 1, 49.713203),
    Sketcher.Constraint("DistanceX", 12, 2, -1, 1, 0.286797),
])
pocket3 = body.newObject("PartDesign::Pocket", "Pocket002")
pocket3.Profile = sketch4
pocket3.Type = "ThroughAll"
pocket3.Midplane = True

sketch5 = body.newObject("Sketcher::SketchObject", "Sketch004")
sketch5.AttachmentSupport = (doc.getObject("XY_Plane"), [""])
sketch5.MapMode = "FlatFace"
sketch5.AttachmentOffset = App.Placement(V(0, 0, 5), App.Rotation())
sketch5.addGeometry([
    Part.Circle(V(-53.5, -118.7, 0), V(0, 0, 1), 1),
    Part.Circle(V(-28.1, -118.7, 0), V(0, 0, 1), 1),
    Part.Circle(V(-21.9, -118.7, 0), V(0, 0, 1), 1),
    Part.Circle(V(3.5, -118.7, 0), V(0, 0, 1), 1),
    Part.Circle(V(3.5, -157.5, 0), V(0, 0, 1), 1),
    Part.Circle(V(-21.9, -157.5, 0), V(0, 0, 1), 1),
    Part.Circle(V(-28.1, -157.5, 0), V(0, 0, 1), 1),
    Part.Circle(V(-53.5, -157.5, 0), V(0, 0, 1), 1),
], False)
sketch5.addConstraint([
    Sketcher.Constraint("Equal", 0, 1),
    Sketcher.Constraint("Equal", 1, 2),
    Sketcher.Constraint("Equal", 2, 3),
    Sketcher.Constraint("Equal", 3, 4),
    Sketcher.Constraint("Equal", 4, 5),
    Sketcher.Constraint("Equal", 5, 6),
    Sketcher.Constraint("Equal", 6, 7),
    Sketcher.Constraint("Horizontal", 0, 3, 1, 3),
    Sketcher.Constraint("Horizontal", 1, 3, 2, 3),
    Sketcher.Constraint("Horizontal", 2, 3, 3, 3),
    Sketcher.Constraint("Horizontal", 4, 3, 5, 3),
    Sketcher.Constraint("Horizontal", 5, 3, 6, 3),
    Sketcher.Constraint("Horizontal", 6, 3, 7, 3),
    Sketcher.Constraint("Vertical", 3, 3, 4, 3),
    Sketcher.Constraint("Vertical", 2, 3, 5, 3),
    Sketcher.Constraint("Vertical", 1, 3, 6, 3),
    Sketcher.Constraint("Vertical", 0, 3, 7, 3),
    Sketcher.Constraint("Diameter", 0, 2.0),
    Sketcher.Constraint("DistanceX", 0, 3, 1, 3, 25.4),
    Sketcher.Constraint("DistanceX", 2, 3, 3, 3, 25.4),
    Sketcher.Constraint("DistanceY", 4, 3, 3, 3, 38.8),
    Sketcher.Constraint("DistanceY", 0, 3, -1, 1, 118.69697),
    Sketcher.Constraint("DistanceX", 0, 3, -1, 1, 53.513203),
    Sketcher.Constraint("DistanceX", 2, 3, -1, 1, 21.886797),
])
pocket4 = body.newObject("PartDesign::Pocket", "Pocket003")
pocket4.Profile = sketch5
pocket4.Type = "ThroughAll"
pocket4.Midplane = True

sketch6 = body.newObject("Sketcher::SketchObject", "Sketch005")
sketch6.AttachmentSupport = (doc.getObject("XY_Plane"), [""])
sketch6.MapMode = "FlatFace"
sketch6.addGeometry([
    Part.LineSegment(V(-40, 0, 0), V(-40, -5, 0)),
    Part.LineSegment(V(-40, -5, 0), V(-10, -5, 0)),
    Part.LineSegment(V(-10, -5, 0), V(-10, 0, 0)),
    Part.LineSegment(V(-10, 0, 0), V(-40, 0, 0)),
], False)
sketch6.addConstraint([
    Sketcher.Constraint("Coincident", 0, 2, 1, 1),
    Sketcher.Constraint("Coincident", 1, 2, 2, 1),
    Sketcher.Constraint("Coincident", 2, 2, 3, 1),
    Sketcher.Constraint("Coincident", 3, 2, 0, 1),
    Sketcher.Constraint("Vertical", 0),
    Sketcher.Constraint("Horizontal", 1),
    Sketcher.Constraint("Vertical", 2),
    Sketcher.Constraint("Horizontal", 3),
    Sketcher.Constraint("PointOnObject", 2, 2, -1),
    Sketcher.Constraint("DistanceX", 1, 1, 1, 2, 30.0),
    Sketcher.Constraint("DistanceY", 0, 2, 0, 1, 5.0),
    Sketcher.Constraint("DistanceX", 0, 2, -1, 1, 40.0),
])
pad2 = body.newObject("PartDesign::Pad", "Pad001")
pad2.Profile = sketch6
pad2.Length = 45.5

sketch7 = body.newObject("Sketcher::SketchObject", "Sketch006")
sketch7.AttachmentSupport = (doc.getObject("XY_Plane"), [""])
sketch7.MapMode = "FlatFace"
sketch7.AttachmentOffset = App.Placement(V(0, 0, 5), App.Rotation())
sketch7.addGeometry([
    Part.LineSegment(V(-40, -164, 0), V(-40, -169, 0)),
    Part.LineSegment(V(-40, -169, 0), V(-10, -169, 0)),
    Part.LineSegment(V(-10, -169, 0), V(-10, -164, 0)),
    Part.LineSegment(V(-10, -164, 0), V(-40, -164, 0)),
], False)
sketch7.addConstraint([
    Sketcher.Constraint("Coincident", 0, 2, 1, 1),
    Sketcher.Constraint("Coincident", 1, 2, 2, 1),
    Sketcher.Constraint("Coincident", 2, 2, 3, 1),
    Sketcher.Constraint("Coincident", 3, 2, 0, 1),
    Sketcher.Constraint("Vertical", 0),
    Sketcher.Constraint("Horizontal", 1),
    Sketcher.Constraint("Vertical", 2),
    Sketcher.Constraint("Horizontal", 3),
    Sketcher.Constraint("DistanceX", 1, 1, 1, 2, 30.0),
    Sketcher.Constraint("DistanceY", 0, 2, 0, 1, 5.0),
    Sketcher.Constraint("DistanceX", 0, 2, -1, 1, 40.0),
    Sketcher.Constraint("DistanceY", 0, 2, -1, 1, 169.39697),
])
pad3 = body.newObject("PartDesign::Pad", "Pad002")
pad3.Profile = sketch7
pad3.Length = 40.5

sketch8 = body.newObject("Sketcher::SketchObject", "Sketch007")
sketch8.AttachmentSupport = (doc.getObject("XY_Plane"), [""])
sketch8.MapMode = "FlatFace"
sketch8.AttachmentOffset = App.Placement(V(0, 0, 45.5), App.Rotation())
sketch8.addGeometry([
    Part.Circle(V(-30, -2.5, 0), V(0, 0, 1), 0.8),
    Part.Circle(V(-20, -2.5, 0), V(0, 0, 1), 0.8),
], False)
sketch8.addConstraint([
    Sketcher.Constraint("Equal", 0, 1),
    Sketcher.Constraint("Horizontal", 0, 3, 1, 3),
    Sketcher.Constraint("Diameter", 0, 1.5),
    Sketcher.Constraint("DistanceX", 0, 3, -1, 1, 30.0),
    Sketcher.Constraint("DistanceX", 1, 3, -1, 1, 20.0),
    Sketcher.Constraint("DistanceY", 0, 3, -1, 1, 2.5),
])
pocket5 = body.newObject("PartDesign::Pocket", "Pocket004")
pocket5.Profile = sketch8
pocket5.Type = "ThroughAll"
pocket5.Midplane = True

sketch9 = body.newObject("Sketcher::SketchObject", "Sketch008")
sketch9.AttachmentSupport = (doc.getObject("XY_Plane"), [""])
sketch9.MapMode = "FlatFace"
sketch9.AttachmentOffset = App.Placement(V(0, 0, 45.5), App.Rotation())
sketch9.addGeometry([
    Part.Circle(V(-30, -166.9, 0), V(0, 0, 1), 0.8),
    Part.Circle(V(-20, -166.9, 0), V(0, 0, 1), 0.8),
], False)
sketch9.addConstraint([
    Sketcher.Constraint("Equal", 0, 1),
    Sketcher.Constraint("Horizontal", 0, 3, 1, 3),
    Sketcher.Constraint("Diameter", 0, 1.5),
    Sketcher.Constraint("DistanceX", 0, 3, -1, 1, 30.0),
    Sketcher.Constraint("DistanceX", 1, 3, -1, 1, 20.0),
    Sketcher.Constraint("DistanceY", 0, 3, -1, 1, 166.89697),
])
pocket6 = body.newObject("PartDesign::Pocket", "Pocket005")
pocket6.Profile = sketch9
pocket6.Type = "ThroughAll"
pocket6.Midplane = True

sketch10 = body.newObject("Sketcher::SketchObject", "Sketch009")
sketch10.AttachmentSupport = (doc.getObject("XY_Plane"), [""])
sketch10.MapMode = "FlatFace"
sketch10.AttachmentOffset = App.Placement(V(0, 0, 5), App.Rotation())
sketch10.addGeometry([
    Part.LineSegment(V(-71, -30, 0), V(-71, -60, 0)),
    Part.LineSegment(V(-71, -60, 0), V(-66, -60, 0)),
    Part.LineSegment(V(-66, -60, 0), V(-66, -30, 0)),
    Part.LineSegment(V(-66, -30, 0), V(-71, -30, 0)),
    Part.LineSegment(V(16, -30, 0), V(16, -60, 0)),
    Part.LineSegment(V(16, -60, 0), V(21, -60, 0)),
    Part.LineSegment(V(21, -60, 0), V(21, -30, 0)),
    Part.LineSegment(V(21, -30, 0), V(16, -30, 0)),
], False)
sketch10.addConstraint([
    Sketcher.Constraint("Coincident", 0, 2, 1, 1),
    Sketcher.Constraint("Coincident", 1, 2, 2, 1),
    Sketcher.Constraint("Coincident", 2, 2, 3, 1),
    Sketcher.Constraint("Coincident", 3, 2, 0, 1),
    Sketcher.Constraint("Coincident", 4, 2, 5, 1),
    Sketcher.Constraint("Coincident", 5, 2, 6, 1),
    Sketcher.Constraint("Coincident", 6, 2, 7, 1),
    Sketcher.Constraint("Coincident", 7, 2, 4, 1),
    Sketcher.Constraint("Vertical", 0),
    Sketcher.Constraint("Horizontal", 1),
    Sketcher.Constraint("Vertical", 2),
    Sketcher.Constraint("Horizontal", 3),
    Sketcher.Constraint("Vertical", 4),
    Sketcher.Constraint("Horizontal", 5),
    Sketcher.Constraint("Vertical", 6),
    Sketcher.Constraint("Horizontal", 7),
    Sketcher.Constraint("Horizontal", 1, 2, 4, 2),
    Sketcher.Constraint("Horizontal", 3, 2, 6, 2),
    Sketcher.Constraint("Equal", 3, 5),
    Sketcher.Constraint("DistanceX", 1, 1, 1, 2, 5.0),
    Sketcher.Constraint("DistanceY", 0, 2, 0, 1, 30.0),
    Sketcher.Constraint("DistanceY", 0, 2, -1, 1, 60.5),
    Sketcher.Constraint("DistanceX", 0, 2, -1, 1, 71.213203),
    Sketcher.Constraint("DistanceX", -1, 1, 4, 2, 16.213203),
])
pad4 = body.newObject("PartDesign::Pad", "Pad003")
pad4.Profile = sketch10
pad4.Length = 40.5

sketch11 = body.newObject("Sketcher::SketchObject", "Sketch010")
sketch11.AttachmentSupport = (doc.getObject("XY_Plane"), [""])
sketch11.MapMode = "FlatFace"
sketch11.addGeometry([
    Part.Circle(V(-68.7, -40.5, 0), V(0, 0, 1), 0.8),
    Part.Circle(V(-68.7, -50.5, 0), V(0, 0, 1), 0.8),
    Part.Circle(V(18.7, -40.5, 0), V(0, 0, 1), 0.8),
    Part.Circle(V(18.7, -50.5, 0), V(0, 0, 1), 0.8),
], False)
sketch11.addConstraint([
    Sketcher.Constraint("Equal", 0, 1),
    Sketcher.Constraint("Equal", 1, 2),
    Sketcher.Constraint("Equal", 2, 3),
    Sketcher.Constraint("Horizontal", 0, 3, 2, 3),
    Sketcher.Constraint("Horizontal", 1, 3, 3, 3),
    Sketcher.Constraint("Vertical", 0, 3, 1, 3),
    Sketcher.Constraint("Vertical", 2, 3, 3, 3),
    Sketcher.Constraint("Diameter", 0, 1.5),
    Sketcher.Constraint("DistanceY", 1, 3, 0, 3, 10.0),
    Sketcher.Constraint("DistanceY", 0, 3, -1, 1, 40.5),
    Sketcher.Constraint("DistanceX", 0, 3, -1, 1, 68.713203),
    Sketcher.Constraint("DistanceX", -1, 1, 2, 3, 18.713203),
])
pocket7 = body.newObject("PartDesign::Pocket", "Pocket006")
pocket7.Profile = sketch11
pocket7.Type = "ThroughAll"
pocket7.Midplane = True

doc.recompute()
